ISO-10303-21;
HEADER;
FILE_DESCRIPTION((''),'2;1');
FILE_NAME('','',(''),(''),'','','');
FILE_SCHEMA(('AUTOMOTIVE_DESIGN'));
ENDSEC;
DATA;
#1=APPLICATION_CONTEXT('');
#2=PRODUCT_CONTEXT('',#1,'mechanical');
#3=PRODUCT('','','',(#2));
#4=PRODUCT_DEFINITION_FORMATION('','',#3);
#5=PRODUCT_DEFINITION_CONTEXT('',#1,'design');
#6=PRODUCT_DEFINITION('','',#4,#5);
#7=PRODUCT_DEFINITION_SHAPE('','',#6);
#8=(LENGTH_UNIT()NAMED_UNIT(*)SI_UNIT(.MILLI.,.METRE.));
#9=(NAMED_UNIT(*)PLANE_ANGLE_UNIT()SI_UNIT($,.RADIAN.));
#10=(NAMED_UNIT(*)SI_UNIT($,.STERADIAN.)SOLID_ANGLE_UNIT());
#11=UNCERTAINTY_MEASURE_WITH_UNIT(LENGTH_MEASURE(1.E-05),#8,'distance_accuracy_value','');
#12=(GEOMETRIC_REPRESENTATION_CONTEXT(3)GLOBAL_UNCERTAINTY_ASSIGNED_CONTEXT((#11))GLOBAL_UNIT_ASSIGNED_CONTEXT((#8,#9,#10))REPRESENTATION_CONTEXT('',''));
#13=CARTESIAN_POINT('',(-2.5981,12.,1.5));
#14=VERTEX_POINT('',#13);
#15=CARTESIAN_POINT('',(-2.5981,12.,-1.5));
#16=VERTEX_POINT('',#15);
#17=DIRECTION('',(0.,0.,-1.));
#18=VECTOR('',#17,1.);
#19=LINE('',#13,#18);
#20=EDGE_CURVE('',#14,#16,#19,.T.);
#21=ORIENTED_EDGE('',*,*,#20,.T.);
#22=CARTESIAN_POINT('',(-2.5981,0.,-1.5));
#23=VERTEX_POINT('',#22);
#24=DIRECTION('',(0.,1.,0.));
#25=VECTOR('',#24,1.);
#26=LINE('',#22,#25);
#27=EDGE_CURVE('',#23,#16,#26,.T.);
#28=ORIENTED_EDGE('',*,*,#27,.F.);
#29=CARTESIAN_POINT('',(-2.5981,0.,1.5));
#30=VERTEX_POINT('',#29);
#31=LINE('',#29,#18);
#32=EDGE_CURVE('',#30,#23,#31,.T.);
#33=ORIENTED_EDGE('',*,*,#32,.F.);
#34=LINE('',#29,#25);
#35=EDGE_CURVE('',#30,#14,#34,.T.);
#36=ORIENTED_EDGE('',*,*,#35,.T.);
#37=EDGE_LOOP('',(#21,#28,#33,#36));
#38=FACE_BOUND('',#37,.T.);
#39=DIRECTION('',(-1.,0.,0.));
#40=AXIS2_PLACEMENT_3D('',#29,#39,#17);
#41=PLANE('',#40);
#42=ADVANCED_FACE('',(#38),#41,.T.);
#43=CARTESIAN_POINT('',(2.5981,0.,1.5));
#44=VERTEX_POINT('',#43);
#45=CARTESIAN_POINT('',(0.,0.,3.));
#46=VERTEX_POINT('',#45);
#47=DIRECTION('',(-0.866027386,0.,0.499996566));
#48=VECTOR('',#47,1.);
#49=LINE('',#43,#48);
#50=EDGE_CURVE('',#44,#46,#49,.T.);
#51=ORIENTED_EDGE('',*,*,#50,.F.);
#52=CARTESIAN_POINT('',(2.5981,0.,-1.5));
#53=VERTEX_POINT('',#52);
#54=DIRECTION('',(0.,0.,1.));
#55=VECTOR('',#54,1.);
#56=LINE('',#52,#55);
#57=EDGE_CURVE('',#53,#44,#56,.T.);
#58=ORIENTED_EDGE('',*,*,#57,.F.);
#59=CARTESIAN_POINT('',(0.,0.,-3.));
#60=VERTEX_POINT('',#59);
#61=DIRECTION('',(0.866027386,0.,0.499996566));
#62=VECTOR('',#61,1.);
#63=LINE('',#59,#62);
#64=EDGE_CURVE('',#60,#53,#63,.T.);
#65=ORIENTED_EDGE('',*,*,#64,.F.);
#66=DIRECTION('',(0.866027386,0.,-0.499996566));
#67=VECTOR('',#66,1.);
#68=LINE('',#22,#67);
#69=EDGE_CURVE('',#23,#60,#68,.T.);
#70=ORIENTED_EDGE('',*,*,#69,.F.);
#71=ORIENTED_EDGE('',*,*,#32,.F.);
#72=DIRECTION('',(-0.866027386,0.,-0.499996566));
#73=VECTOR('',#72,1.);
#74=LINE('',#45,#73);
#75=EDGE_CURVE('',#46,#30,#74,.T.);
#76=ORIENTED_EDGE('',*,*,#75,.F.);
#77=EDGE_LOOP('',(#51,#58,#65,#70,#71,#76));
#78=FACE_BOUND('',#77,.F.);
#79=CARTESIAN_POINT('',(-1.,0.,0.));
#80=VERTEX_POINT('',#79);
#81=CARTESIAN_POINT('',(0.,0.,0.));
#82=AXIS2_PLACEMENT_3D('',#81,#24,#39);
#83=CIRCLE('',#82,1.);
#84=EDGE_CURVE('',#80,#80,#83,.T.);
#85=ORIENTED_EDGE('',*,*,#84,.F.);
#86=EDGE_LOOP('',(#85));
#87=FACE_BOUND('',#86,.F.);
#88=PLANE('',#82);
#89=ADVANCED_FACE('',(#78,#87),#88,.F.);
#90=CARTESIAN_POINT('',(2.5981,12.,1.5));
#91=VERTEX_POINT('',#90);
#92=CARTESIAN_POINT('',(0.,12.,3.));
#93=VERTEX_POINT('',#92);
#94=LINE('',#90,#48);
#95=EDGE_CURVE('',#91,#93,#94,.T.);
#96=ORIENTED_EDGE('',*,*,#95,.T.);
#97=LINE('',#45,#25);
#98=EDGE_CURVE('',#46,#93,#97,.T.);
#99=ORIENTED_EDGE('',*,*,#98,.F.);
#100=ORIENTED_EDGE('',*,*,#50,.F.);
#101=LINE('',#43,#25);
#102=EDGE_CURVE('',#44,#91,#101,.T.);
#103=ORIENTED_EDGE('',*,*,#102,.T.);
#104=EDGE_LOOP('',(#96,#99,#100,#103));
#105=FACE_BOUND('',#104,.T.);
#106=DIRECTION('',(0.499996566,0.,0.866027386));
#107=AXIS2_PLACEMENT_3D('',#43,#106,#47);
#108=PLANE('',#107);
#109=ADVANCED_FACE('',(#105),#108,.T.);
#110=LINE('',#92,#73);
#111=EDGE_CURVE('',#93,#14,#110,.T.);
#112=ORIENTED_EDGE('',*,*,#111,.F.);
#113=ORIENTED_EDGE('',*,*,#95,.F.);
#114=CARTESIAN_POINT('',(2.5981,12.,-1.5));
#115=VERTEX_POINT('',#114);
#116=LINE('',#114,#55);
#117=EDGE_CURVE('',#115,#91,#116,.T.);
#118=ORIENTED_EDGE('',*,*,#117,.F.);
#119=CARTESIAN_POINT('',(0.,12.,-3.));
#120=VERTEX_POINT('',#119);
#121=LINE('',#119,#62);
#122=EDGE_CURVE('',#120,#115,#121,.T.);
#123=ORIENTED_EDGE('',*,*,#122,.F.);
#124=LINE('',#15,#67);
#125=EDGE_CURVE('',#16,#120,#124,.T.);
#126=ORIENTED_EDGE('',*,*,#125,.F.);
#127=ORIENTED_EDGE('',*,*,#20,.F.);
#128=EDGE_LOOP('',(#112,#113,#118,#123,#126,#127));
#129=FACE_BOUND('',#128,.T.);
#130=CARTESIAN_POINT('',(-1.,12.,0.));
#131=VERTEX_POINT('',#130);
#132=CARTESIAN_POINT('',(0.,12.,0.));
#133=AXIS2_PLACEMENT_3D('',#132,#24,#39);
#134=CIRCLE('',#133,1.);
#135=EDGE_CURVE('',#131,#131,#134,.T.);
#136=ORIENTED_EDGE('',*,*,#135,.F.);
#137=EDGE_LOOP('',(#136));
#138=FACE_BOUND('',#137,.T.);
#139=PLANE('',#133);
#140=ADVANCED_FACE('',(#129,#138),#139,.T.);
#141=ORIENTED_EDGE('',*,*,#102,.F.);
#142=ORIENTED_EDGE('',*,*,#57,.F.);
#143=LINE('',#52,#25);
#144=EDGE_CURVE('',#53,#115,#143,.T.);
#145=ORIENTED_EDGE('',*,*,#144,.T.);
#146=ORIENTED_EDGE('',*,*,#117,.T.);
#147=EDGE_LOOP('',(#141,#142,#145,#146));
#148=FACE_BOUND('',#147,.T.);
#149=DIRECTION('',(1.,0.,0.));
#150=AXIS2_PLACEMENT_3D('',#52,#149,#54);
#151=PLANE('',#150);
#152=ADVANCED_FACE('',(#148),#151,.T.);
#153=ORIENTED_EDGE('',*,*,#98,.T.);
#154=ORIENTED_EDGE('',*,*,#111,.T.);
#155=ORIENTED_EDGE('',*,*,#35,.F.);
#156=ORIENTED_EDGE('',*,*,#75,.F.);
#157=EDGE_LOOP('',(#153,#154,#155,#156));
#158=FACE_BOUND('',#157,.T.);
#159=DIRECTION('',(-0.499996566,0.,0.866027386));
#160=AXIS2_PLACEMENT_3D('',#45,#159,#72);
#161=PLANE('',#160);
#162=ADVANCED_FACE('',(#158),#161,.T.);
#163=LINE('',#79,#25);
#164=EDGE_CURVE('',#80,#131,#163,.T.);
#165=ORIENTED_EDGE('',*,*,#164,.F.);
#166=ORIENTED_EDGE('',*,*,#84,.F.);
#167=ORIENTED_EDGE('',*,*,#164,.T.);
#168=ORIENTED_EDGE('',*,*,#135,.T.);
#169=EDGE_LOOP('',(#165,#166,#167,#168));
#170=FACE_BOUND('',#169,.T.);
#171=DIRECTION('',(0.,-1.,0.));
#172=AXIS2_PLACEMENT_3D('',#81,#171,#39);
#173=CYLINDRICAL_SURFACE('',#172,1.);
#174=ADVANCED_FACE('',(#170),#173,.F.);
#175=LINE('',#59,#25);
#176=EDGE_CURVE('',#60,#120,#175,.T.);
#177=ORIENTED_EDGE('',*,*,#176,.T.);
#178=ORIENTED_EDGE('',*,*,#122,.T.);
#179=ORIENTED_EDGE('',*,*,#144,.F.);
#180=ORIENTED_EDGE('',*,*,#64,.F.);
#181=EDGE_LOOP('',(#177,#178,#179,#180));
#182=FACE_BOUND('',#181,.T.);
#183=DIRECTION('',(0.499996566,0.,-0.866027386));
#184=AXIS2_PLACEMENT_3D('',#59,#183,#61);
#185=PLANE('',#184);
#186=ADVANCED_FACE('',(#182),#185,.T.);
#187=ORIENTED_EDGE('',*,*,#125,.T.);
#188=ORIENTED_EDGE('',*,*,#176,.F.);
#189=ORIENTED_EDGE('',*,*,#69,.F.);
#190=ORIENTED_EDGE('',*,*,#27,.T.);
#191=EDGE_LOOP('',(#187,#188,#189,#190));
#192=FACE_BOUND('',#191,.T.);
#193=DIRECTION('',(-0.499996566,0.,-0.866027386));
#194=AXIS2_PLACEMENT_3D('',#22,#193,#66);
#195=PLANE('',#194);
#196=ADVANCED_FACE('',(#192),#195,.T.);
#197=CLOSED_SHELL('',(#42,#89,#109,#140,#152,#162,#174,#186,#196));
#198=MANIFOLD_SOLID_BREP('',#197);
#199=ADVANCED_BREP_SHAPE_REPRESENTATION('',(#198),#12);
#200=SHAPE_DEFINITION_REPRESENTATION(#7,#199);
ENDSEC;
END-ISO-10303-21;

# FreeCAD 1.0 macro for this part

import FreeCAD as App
import Part
import Sketcher
from FreeCAD import Vector
Q = App.Units.Quantity


def add_polygon(sketch, points):
    """Adds a closed chain of lines whose ends are joined by coincident constraints."""
    first, n = sketch.GeometryCount, len(points)
    for a, b in zip(points, points[1:] + points[:1]):
        sketch.addGeometry(Part.LineSegment(App.Vector(*a, 0), App.Vector(*b, 0)), False)
    for i in range(n):
        sketch.addConstraint(Sketcher.Constraint("Coincident", first + i, 2, first + (i + 1) % n, 1))

doc = App.newDocument("Part")
body = doc.addObject("PartDesign::Body", "Body")

sketch1 = doc.addObject("Sketcher::SketchObject", "Sketch")
body.addObject(sketch1)
sketch1.AttachmentSupport = (doc.XZ_Plane, [""])
sketch1.MapMode = "FlatFace"
add_polygon(sketch1, [(2.5981, -1.5), (0, -3), (-2.5981, -1.5), (-2.5981, 1.5), (0, 3), (2.5981, 1.5)])
sketch1.addGeometry(Part.Circle(Vector(0, 0, 0), Vector(0, 0, 1), 1), False)
sketch1.addConstraint(Sketcher.Constraint("Vertical", 2))
sketch1.addConstraint(Sketcher.Constraint("Vertical", 5))
sketch1.addConstraint(Sketcher.Constraint("Coincident", 6, 3, -1, 1))
sketch1.addConstraint(Sketcher.Constraint("Symmetric", 0, 2, 3, 2, -1, 1))
sketch1.addConstraint(Sketcher.Constraint("Symmetric", 1, 2, 4, 2, -1, 1))
sketch1.addConstraint(Sketcher.Constraint("PointOnObject", 0, 2, -2))
sketch1.addConstraint(Sketcher.Constraint("Parallel", 0, 3))
sketch1.addConstraint(Sketcher.Constraint("Horizontal", 2, 2, 4, 2))
sketch1.addConstraint(Sketcher.Constraint("Diameter", 6, Q("2 mm")))
sketch1.addConstraint(Sketcher.Constraint("DistanceY", 2, 1, 2, 2, Q("3 mm")))
sketch1.addConstraint(Sketcher.Constraint("Distance", 0, Q("3 mm")))
sketch1.addConstraint(Sketcher.Constraint("DistanceY", 0, 2, -1, 1, Q("3 mm")))
pad1 = doc.addObject("PartDesign::Pad", "Pad")
body.addObject(pad1)
pad1.Profile = sketch1
pad1.Length = 12
pad1.Reversed = True

doc.recompute()
